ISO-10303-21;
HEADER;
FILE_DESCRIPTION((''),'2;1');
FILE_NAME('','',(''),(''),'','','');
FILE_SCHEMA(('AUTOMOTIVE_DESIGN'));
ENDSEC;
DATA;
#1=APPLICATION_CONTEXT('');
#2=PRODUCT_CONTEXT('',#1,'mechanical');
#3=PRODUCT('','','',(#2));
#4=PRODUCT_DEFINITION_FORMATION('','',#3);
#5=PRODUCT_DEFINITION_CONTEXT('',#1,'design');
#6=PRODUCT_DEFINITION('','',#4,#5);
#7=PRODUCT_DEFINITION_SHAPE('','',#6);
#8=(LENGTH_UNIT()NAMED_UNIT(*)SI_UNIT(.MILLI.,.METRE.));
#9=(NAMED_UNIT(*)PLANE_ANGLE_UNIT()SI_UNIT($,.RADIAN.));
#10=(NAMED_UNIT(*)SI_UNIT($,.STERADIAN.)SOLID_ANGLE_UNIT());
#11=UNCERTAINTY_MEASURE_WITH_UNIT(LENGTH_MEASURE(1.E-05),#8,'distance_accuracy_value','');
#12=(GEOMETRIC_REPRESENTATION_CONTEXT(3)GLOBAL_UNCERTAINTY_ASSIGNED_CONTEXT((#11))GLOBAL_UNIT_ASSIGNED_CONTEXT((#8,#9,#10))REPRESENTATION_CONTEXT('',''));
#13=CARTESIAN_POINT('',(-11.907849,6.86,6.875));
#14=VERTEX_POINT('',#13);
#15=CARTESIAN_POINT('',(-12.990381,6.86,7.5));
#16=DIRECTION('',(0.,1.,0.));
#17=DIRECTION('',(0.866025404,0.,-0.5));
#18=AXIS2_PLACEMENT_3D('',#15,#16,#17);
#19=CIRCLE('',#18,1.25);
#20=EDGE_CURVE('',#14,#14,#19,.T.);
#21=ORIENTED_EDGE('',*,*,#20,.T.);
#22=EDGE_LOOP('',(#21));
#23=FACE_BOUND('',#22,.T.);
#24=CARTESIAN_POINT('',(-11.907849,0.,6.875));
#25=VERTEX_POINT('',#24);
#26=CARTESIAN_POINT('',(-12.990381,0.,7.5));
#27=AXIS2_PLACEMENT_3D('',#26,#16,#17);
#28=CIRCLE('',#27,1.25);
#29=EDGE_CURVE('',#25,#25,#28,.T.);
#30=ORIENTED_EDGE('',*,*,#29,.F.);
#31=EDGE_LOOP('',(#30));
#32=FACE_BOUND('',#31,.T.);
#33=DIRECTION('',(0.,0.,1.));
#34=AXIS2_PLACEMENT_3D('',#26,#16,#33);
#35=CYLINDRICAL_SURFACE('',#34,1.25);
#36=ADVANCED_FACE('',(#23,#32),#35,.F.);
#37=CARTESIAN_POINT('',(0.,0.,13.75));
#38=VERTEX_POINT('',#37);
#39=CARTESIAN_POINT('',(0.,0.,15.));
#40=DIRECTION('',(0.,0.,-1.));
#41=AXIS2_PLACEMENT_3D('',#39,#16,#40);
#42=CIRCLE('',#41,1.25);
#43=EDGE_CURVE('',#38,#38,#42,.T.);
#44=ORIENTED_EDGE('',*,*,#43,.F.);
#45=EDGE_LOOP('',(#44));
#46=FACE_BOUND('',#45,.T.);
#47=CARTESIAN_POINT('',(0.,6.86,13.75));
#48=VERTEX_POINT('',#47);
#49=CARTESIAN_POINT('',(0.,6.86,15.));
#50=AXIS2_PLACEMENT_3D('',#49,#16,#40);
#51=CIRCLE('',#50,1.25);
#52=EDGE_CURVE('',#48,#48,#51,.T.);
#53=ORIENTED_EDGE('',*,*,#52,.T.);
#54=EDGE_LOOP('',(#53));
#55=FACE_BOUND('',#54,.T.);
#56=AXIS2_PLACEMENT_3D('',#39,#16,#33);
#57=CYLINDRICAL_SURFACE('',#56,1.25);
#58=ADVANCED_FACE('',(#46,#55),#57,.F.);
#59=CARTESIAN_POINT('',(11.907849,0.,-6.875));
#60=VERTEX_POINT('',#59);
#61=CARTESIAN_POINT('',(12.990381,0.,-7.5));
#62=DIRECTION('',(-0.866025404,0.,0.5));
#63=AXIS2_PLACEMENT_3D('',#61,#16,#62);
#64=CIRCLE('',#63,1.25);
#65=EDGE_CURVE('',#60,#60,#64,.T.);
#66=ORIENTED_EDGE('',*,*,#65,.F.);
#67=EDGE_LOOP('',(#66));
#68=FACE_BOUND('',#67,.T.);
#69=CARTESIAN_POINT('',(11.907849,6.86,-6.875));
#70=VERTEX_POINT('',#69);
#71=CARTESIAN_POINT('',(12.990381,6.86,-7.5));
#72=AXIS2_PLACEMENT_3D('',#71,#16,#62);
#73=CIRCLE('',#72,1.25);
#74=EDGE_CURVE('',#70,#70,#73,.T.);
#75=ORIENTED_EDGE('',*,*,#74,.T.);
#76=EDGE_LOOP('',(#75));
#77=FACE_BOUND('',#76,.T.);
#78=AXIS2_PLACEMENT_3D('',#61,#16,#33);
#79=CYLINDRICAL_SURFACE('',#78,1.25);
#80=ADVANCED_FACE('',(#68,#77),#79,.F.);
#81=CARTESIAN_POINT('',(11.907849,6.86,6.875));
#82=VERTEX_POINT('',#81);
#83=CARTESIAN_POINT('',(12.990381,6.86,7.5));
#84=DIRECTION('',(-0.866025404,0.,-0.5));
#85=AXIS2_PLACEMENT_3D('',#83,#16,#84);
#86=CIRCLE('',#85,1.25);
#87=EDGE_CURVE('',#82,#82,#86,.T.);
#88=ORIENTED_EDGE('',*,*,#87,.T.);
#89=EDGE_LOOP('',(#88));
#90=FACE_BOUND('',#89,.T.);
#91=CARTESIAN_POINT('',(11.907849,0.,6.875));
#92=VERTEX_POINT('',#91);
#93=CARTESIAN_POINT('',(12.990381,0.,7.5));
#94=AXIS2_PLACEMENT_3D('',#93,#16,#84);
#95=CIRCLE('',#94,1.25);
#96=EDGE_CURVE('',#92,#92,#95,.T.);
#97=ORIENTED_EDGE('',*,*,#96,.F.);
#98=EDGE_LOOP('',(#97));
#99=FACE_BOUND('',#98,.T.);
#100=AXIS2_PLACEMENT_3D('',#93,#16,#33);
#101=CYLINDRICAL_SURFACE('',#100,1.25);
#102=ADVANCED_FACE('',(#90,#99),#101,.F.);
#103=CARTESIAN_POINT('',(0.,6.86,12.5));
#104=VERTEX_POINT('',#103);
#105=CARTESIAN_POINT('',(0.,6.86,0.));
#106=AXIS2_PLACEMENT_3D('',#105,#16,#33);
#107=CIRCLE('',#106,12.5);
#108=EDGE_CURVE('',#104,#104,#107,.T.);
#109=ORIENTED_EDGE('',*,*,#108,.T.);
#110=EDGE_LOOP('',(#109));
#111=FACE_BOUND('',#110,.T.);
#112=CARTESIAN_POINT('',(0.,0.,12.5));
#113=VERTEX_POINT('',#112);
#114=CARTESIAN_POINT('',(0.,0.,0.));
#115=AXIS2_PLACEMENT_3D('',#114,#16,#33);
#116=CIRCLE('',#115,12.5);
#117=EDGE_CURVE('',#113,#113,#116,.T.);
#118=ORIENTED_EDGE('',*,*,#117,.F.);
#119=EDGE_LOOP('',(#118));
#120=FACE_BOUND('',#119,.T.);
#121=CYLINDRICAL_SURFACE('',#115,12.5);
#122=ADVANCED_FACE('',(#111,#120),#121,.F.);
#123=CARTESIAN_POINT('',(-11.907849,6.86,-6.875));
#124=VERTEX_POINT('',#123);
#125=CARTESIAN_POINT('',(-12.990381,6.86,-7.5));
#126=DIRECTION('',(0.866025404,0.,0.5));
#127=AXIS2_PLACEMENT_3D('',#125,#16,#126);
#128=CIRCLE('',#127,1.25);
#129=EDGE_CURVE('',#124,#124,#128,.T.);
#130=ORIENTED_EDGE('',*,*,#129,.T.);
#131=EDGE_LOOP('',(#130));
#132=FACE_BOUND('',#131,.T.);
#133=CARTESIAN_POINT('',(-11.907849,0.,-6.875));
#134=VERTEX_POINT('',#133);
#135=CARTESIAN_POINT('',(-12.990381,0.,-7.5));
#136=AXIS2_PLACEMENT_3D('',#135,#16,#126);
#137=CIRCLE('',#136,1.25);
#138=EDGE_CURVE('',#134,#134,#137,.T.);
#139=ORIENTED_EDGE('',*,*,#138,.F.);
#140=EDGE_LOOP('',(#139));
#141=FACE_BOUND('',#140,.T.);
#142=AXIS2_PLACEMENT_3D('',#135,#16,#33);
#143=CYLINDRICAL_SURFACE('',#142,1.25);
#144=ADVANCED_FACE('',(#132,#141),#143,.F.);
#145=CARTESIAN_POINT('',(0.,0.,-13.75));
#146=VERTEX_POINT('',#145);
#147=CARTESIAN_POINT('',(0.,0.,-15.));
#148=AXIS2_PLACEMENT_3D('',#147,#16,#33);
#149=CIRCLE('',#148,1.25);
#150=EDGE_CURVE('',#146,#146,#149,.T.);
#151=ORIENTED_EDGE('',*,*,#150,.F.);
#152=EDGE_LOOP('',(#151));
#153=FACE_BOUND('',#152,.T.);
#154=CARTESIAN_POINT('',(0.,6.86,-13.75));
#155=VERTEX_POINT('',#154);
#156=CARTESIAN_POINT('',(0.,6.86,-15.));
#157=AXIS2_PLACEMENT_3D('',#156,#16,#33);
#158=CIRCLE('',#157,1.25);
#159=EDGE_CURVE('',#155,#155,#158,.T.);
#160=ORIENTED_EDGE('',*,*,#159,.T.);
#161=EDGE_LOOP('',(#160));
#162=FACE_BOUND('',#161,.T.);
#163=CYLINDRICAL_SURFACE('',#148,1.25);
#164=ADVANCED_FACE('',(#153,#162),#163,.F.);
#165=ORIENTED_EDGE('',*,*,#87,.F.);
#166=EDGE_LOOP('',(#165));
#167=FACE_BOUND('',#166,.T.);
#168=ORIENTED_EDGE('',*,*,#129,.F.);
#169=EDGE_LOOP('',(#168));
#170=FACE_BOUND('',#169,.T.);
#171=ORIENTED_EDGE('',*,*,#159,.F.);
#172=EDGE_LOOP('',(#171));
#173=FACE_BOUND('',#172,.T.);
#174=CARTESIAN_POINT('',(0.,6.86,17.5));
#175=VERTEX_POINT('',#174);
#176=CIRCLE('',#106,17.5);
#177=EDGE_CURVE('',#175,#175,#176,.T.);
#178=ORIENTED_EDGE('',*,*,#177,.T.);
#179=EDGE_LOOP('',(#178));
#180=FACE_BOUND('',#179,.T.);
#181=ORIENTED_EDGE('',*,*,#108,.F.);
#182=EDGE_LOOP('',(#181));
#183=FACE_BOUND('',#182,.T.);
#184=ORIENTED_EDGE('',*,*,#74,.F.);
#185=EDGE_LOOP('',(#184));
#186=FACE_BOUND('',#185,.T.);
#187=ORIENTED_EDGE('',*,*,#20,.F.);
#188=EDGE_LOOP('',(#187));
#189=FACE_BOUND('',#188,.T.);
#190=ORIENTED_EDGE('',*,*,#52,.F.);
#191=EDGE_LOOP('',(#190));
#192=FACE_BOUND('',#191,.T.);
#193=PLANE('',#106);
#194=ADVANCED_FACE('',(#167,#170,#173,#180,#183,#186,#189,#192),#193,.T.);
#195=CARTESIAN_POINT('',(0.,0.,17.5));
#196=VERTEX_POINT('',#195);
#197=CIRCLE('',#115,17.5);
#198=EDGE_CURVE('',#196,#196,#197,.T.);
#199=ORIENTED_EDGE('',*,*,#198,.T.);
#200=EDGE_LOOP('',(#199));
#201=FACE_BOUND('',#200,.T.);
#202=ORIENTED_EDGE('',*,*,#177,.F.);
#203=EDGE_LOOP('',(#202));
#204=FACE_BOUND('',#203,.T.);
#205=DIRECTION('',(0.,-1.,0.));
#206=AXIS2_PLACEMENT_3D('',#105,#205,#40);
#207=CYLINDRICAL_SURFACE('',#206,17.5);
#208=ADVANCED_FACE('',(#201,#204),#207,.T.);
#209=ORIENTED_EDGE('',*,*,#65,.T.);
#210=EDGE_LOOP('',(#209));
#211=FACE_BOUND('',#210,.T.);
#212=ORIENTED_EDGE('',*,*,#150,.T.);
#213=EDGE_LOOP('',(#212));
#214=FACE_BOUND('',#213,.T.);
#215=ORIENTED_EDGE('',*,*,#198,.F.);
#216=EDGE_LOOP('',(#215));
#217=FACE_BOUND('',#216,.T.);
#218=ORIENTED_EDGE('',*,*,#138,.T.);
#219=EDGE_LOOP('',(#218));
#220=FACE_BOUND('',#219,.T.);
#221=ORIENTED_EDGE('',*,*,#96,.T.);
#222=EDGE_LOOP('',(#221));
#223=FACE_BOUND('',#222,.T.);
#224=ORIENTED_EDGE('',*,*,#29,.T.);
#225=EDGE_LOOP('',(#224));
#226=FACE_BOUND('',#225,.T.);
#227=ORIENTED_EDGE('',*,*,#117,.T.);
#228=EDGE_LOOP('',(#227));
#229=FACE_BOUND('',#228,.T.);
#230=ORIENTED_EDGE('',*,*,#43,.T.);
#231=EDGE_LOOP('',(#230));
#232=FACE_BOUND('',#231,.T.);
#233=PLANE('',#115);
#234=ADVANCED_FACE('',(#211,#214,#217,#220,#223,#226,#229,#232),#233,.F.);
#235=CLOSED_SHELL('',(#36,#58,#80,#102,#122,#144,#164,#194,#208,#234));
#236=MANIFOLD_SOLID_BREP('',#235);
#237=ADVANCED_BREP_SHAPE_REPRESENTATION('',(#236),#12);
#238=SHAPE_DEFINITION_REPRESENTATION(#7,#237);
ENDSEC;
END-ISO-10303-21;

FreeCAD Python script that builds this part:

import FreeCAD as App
import Part
import Sketcher
Q = App.Units.Quantity

doc = App.newDocument("Part")
body = doc.addObject("PartDesign::Body", "Body")

sketch1 = body.newObject("Sketcher::SketchObject", "Sketch")
sketch1.AttachmentSupport = (doc.getObject("XZ_Plane"), [""])
sketch1.MapMode = "FlatFace"
sketch1.addGeometry(Part.Circle(App.Vector(0, 0, 0), App.Vector(0, 0, 1), 17.5), False)
sketch1.addConstraint([
    Sketcher.Constraint("Coincident", 0, 3, -1, 1),
    Sketcher.Constraint("Diameter", 0, Q("35 mm")),
])
pad1 = body.newObject("PartDesign::Pad", "Pad")
pad1.Profile = sketch1
pad1.Length = 6.86
pad1.Reversed = True

sketch2 = body.newObject("Sketcher::SketchObject", "Sketch001")
sketch2.AttachmentSupport = (doc.getObject("XZ_Plane"), [""])
sketch2.MapMode = "FlatFace"
sketch2.AttachmentOffset = App.Placement(App.Vector(0, 0, -6.86), App.Rotation())
sketch2.addGeometry(Part.Circle(App.Vector(0, 0, 0), App.Vector(0, 0, 1), 12.5), False)
sketch2.addConstraint([
    Sketcher.Constraint("Coincident", 0, 3, -1, 1),
    Sketcher.Constraint("Diameter", 0, Q("25 mm")),
])
pocket1 = body.newObject("PartDesign::Pocket", "Pocket")
pocket1.Profile = sketch2
pocket1.Length = 6.86
pocket1.Reversed = True

sketch3 = body.newObject("Sketcher::SketchObject", "Sketch002")
sketch3.AttachmentSupport = (doc.getObject("XZ_Plane"), [""])
sketch3.MapMode = "FlatFace"
sketch3.AttachmentOffset = App.Placement(App.Vector(0, 0, -6.86), App.Rotation())
sketch3.addGeometry(Part.Circle(App.Vector(0, -15, 0), App.Vector(0, 0, 1), 1.25), False)
sketch3.addConstraint([
    Sketcher.Constraint("PointOnObject", 0, 3, -2),
    Sketcher.Constraint("Diameter", 0, Q("2.5 mm")),
    Sketcher.Constraint("DistanceY", 0, 3, -1, 1, Q("15 mm")),
])
pocket2 = body.newObject("PartDesign::Pocket", "Pocket001")
pocket2.Profile = sketch3
pocket2.Length = 6.86
pocket2.Reversed = True
doc.recompute()

polarpattern = body.newObject("PartDesign::PolarPattern", "PolarPattern")
polarpattern.Originals = [pocket2]
polarpattern.Axis = (doc.getObject("Y_Axis"), [""])
polarpattern.Angle = 360
polarpattern.Occurrences = 6
body.Tip = polarpattern

doc.recompute()
